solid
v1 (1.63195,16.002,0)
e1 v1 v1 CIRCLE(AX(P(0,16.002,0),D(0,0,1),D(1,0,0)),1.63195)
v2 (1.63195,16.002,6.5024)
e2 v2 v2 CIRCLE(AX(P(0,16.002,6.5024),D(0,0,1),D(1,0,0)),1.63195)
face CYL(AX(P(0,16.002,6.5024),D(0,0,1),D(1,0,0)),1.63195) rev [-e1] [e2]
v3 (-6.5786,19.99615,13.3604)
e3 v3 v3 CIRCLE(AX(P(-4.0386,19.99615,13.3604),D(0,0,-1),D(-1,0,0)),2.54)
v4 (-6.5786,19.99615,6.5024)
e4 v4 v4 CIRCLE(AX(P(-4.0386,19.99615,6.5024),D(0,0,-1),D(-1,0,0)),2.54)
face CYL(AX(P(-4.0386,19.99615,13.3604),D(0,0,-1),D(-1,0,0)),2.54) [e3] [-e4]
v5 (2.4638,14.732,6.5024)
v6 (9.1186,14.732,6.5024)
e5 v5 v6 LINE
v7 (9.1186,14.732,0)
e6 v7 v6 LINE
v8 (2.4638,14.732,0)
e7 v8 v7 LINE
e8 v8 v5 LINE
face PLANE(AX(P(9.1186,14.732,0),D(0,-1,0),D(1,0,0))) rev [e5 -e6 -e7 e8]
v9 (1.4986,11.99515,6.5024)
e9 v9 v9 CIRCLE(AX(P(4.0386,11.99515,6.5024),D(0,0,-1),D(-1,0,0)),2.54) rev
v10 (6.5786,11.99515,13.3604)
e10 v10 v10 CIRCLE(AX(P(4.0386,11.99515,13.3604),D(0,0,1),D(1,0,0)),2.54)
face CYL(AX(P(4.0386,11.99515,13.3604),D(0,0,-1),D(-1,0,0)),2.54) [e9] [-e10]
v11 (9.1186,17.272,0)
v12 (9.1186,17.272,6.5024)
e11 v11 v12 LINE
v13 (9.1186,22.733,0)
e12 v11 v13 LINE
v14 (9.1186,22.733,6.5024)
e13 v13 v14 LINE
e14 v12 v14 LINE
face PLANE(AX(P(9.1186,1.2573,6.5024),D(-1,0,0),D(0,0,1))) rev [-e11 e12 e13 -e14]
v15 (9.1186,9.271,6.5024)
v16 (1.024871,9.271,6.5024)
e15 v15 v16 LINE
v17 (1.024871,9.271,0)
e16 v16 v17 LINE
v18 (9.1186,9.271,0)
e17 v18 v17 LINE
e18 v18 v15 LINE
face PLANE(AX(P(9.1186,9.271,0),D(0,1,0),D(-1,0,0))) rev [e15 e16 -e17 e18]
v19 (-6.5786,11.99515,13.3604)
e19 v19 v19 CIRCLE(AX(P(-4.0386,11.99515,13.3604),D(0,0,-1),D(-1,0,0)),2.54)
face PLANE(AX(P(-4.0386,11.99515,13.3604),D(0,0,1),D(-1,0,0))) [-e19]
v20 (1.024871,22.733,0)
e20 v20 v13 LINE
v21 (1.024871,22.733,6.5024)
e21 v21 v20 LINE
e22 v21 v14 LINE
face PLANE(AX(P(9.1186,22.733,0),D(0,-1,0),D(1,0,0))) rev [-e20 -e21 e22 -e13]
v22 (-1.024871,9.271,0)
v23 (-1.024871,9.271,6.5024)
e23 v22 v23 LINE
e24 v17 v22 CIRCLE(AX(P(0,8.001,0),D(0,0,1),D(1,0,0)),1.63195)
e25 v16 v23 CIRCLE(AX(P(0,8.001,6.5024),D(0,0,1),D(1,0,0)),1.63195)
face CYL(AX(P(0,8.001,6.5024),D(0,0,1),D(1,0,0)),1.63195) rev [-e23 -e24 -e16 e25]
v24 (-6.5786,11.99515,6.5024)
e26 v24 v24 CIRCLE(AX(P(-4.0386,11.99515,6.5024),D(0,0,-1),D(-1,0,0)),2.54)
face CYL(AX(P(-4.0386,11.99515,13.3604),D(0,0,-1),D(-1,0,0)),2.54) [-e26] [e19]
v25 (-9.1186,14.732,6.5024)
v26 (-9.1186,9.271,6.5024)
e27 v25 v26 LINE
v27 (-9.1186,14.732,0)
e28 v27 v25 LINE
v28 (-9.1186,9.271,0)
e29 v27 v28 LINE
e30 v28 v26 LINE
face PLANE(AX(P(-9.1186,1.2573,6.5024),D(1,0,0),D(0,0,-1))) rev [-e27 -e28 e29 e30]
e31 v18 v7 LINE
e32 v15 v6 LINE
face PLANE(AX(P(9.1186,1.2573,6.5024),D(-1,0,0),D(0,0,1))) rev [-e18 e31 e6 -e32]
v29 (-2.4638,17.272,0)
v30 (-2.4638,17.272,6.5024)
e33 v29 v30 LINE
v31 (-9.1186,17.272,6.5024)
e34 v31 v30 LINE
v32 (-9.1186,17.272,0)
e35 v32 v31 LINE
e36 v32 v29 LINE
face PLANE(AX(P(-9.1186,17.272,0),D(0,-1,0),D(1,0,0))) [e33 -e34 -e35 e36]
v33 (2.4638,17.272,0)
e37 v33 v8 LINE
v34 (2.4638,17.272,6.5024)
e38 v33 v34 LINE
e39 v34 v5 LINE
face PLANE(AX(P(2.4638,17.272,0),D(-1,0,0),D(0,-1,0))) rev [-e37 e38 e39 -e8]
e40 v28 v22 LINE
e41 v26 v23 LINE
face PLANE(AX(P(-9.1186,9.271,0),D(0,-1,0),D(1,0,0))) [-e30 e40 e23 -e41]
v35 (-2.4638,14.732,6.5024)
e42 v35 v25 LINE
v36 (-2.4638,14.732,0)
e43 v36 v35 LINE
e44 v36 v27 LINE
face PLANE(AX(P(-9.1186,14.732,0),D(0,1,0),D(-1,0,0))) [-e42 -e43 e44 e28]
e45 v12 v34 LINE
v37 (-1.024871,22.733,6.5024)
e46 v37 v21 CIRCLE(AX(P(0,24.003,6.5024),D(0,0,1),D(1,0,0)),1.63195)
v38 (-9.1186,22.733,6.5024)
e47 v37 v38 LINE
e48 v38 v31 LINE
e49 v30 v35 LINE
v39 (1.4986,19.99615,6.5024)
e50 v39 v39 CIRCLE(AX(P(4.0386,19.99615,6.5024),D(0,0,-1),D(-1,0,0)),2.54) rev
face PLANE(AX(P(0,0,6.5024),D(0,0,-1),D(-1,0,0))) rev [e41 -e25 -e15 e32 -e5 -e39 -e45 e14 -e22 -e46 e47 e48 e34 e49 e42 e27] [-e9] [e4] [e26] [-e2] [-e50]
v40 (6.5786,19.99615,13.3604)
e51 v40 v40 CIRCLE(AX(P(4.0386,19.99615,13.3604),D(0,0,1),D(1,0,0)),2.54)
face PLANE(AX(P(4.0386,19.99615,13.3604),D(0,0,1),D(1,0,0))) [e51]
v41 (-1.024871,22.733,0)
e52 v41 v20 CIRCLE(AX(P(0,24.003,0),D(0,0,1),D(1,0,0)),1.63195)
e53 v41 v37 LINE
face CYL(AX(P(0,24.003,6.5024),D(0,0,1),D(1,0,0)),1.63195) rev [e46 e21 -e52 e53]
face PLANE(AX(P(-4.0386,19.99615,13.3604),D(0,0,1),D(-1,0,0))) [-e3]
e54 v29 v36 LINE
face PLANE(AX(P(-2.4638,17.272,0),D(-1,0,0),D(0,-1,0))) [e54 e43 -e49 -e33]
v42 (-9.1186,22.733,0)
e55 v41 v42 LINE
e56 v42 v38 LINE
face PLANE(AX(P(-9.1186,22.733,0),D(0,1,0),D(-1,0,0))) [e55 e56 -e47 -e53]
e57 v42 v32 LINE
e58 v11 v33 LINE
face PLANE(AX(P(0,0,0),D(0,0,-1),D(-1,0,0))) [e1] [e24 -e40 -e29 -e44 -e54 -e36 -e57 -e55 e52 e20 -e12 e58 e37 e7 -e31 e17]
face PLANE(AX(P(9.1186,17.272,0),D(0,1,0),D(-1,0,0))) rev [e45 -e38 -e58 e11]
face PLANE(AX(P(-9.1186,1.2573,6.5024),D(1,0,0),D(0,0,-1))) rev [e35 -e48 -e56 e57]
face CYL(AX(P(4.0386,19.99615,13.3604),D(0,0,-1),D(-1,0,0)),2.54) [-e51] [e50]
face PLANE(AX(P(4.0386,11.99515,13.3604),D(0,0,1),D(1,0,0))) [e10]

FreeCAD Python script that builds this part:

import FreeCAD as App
import Part
import Sketcher
Q = App.Units.Quantity


def add_polygon(sketch, points):
    """Adds a closed chain of lines whose ends are joined by coincident constraints."""
    first, n = sketch.GeometryCount, len(points)
    for a, b in zip(points, points[1:] + points[:1]):
        sketch.addGeometry(Part.LineSegment(App.Vector(*a, 0), App.Vector(*b, 0)), False)
    for i in range(n):
        sketch.addConstraint(Sketcher.Constraint("Coincident", first + i, 2, first + (i + 1) % n, 1))

doc = App.newDocument("Part")
params = doc.addObject("Spreadsheet::Sheet", "Params")
for row, (alias, value) in enumerate([
    ("sketch1_width", "0.718 in"),
    ("sketch1_height", "0.531 in"),
    ("pad1_length", "0.256 in"),
    ("sketch2_height", "0.1 in"),
    ("sketch2_width", "0.262 in"),
    ("sketch3_diameter", "0.2 in"),
    ("pad2_length", "0.27 in"),
    ("sketch4_width", "0.718 in"),
    ("hole_diameter", "0.1285 in"),
    ("linearpattern_pitch", "0.315 in"),
    ("sketch6_height", "0.1 in"),
    ("sketch6_width", "0.262 in"),
    ("sketch7_height", "0.1 in"),
    ("sketch7_width", "0.262 in"),
    ("sketch8_height", "0.1 in"),
    ("sketch8_width", "0.262 in"),
    ("sketch9_diameter", "0.2 in"),
    ("pad3_length", "0.27 in"),
    ("sketch10_diameter", "0.2 in"),
    ("pad4_length", "0.27 in"),
    ("sketch11_diameter", "0.2 in"),
    ("pad5_length", "0.27 in"),
    ("sketch12_width", "0.718 in"),
    ("sketch13_width", "0.718 in"),
], start=1):
    params.set(f"A{row}", alias)
    params.set(f"B{row}", "=" + value)
    params.setAlias(f"B{row}", alias)

body = doc.addObject("PartDesign::Body", "Body")

# Sketch on XY plane
sketch1 = body.newObject("Sketcher::SketchObject", "Sketch")
sketch1.AttachmentSupport = (doc.getObject("XY_Plane"), [""])
sketch1.MapMode = "FlatFace"
add_polygon(sketch1, [(-9.1186, 6.7437), (-9.1186, -6.7437), (9.1186, -6.7437), (9.1186, 6.7437)])  # lines 0-3
sketch1.addConstraint([
    Sketcher.Constraint("Vertical", 0),
    Sketcher.Constraint("Horizontal", 1),
    Sketcher.Constraint("Vertical", 2),
    Sketcher.Constraint("Horizontal", 3),
    Sketcher.Constraint("Symmetric", 0, 2, 2, 2, -1, 1),
    Sketcher.Constraint("DistanceX", 1, 1, 1, 2, Q("0.718 in")),
    Sketcher.Constraint("DistanceY", 0, 2, 0, 1, Q("0.531 in")),
])
sketch1.setExpression("Constraints[9]", "Params.sketch1_width")
sketch1.setExpression("Constraints[10]", "Params.sketch1_height")
pad1 = body.newObject("PartDesign::Pad", "Pad")
pad1.Profile = sketch1
pad1.setExpression("Length", "Params.pad1_length")

# Sketch on XY plane
sketch2 = body.newObject("Sketcher::SketchObject", "Sketch001")
sketch2.AttachmentSupport = (doc.getObject("XY_Plane"), [""])
sketch2.MapMode = "FlatFace"
sketch2.AttachmentOffset = App.Placement(App.Vector(0, 0, 0.256 * 25.4), App.Rotation())
add_polygon(sketch2, [(2.4638, 1.27), (2.4638, -1.27), (9.1186, -1.27), (9.1186, 1.27)])  # lines 0-3
sketch2.addConstraint([
    Sketcher.Constraint("Vertical", 0),
    Sketcher.Constraint("Horizontal", 1),
    Sketcher.Constraint("Vertical", 2),
    Sketcher.Constraint("Horizontal", 3),
    Sketcher.Constraint("DistanceY", 0, 2, 0, 1, Q("0.1 in")),
    Sketcher.Constraint("DistanceX", 1, 1, 1, 2, Q("0.262 in")),
    Sketcher.Constraint("DistanceY", 0, 2, -1, 1, Q("0.05 in")),
    Sketcher.Constraint("DistanceX", -1, 1, 0, 2, Q("0.097 in")),
])
sketch2.setExpression("Constraints[8]", "Params.sketch2_height")
sketch2.setExpression("Constraints[9]", "Params.sketch2_width")
pocket1 = body.newObject("PartDesign::Pocket", "Pocket")
pocket1.Profile = sketch2
pocket1.Type = "ThroughAll"

# Sketch on XY plane
sketch3 = body.newObject("Sketcher::SketchObject", "Sketch002")
sketch3.AttachmentSupport = (doc.getObject("XY_Plane"), [""])
sketch3.MapMode = "FlatFace"
sketch3.AttachmentOffset = App.Placement(App.Vector(0, 0, 0.256 * 25.4), App.Rotation())
sketch3.addGeometry(Part.Circle(App.Vector(4.0386, -4.00685, 0), App.Vector(0, 0, 1), 2.54), False)
sketch3.addConstraint([
    Sketcher.Constraint("Diameter", 0, Q("0.2 in")),
    Sketcher.Constraint("DistanceX", -1, 1, 0, 3, Q("0.159 in")),
    Sketcher.Constraint("DistanceY", 0, 3, -1, 1, Q("4.00685 mm")),
])
sketch3.setExpression("Constraints[0]", "Params.sketch3_diameter")
pad2 = body.newObject("PartDesign::Pad", "Pad001")
pad2.Profile = sketch3
pad2.setExpression("Length", "Params.pad2_length")

# Sketch on XY plane
sketch4 = body.newObject("Sketcher::SketchObject", "Sketch003")
sketch4.AttachmentSupport = (doc.getObject("XY_Plane"), [""])
sketch4.MapMode = "FlatFace"
sketch4.AttachmentOffset = App.Placement(App.Vector(0, 0, 0.256 * 25.4), App.Rotation())
add_polygon(sketch4, [(-9.1186, 6.7437), (-9.1186, 1.27), (9.1186, 1.27), (9.1186, 6.7437)])  # lines 0-3
sketch4.addConstraint([
    Sketcher.Constraint("Vertical", 0),
    Sketcher.Constraint("Horizontal", 1),
    Sketcher.Constraint("Vertical", 2),
    Sketcher.Constraint("Horizontal", 3),
    Sketcher.Constraint("DistanceX", 1, 1, 1, 2, Q("0.718 in")),
    Sketcher.Constraint("DistanceY", -1, 1, 0, 2, Q("0.05 in")),
    Sketcher.Constraint("DistanceY", 0, 2, 0, 1, Q("0.2155 in")),
    Sketcher.Constraint("DistanceX", 0, 2, -1, 1, Q("0.359 in")),
])
sketch4.setExpression("Constraints[8]", "Params.sketch4_width")
pocket2 = body.newObject("PartDesign::Pocket", "Pocket001")
pocket2.Profile = sketch4
pocket2.Type = "ThroughAll"

# Sketch on XY plane
sketch5 = body.newObject("Sketcher::SketchObject", "Sketch004")
sketch5.AttachmentSupport = (doc.getObject("XY_Plane"), [""])
sketch5.MapMode = "FlatFace"
sketch5.AttachmentOffset = App.Placement(App.Vector(0, 0, 0.256 * 25.4), App.Rotation())
sketch5.addGeometry(Part.Circle(App.Vector(0, 0, 0), App.Vector(0, 0, 1), 1.63195), False)
sketch5.addConstraint([
    Sketcher.Constraint("Coincident", 0, 3, -1, 1),
    Sketcher.Constraint("Diameter", 0, Q("0.1285 in")),
])
doc.recompute()
hole = body.newObject("PartDesign::Hole", "Hole")
hole.Profile = sketch5
hole.ThreadType = "None"
hole.setExpression("Diameter", "Params.hole_diameter")
hole.DepthType = "ThroughAll"
doc.recompute()

mirrored = body.newObject("PartDesign::Mirrored", "Mirrored")
mirrored.Originals = [pocket1, pad2]
mirrored.MirrorPlane = (doc.getObject("YZ_Plane"), [""])
body.Tip = mirrored
doc.recompute()

linearpattern = body.newObject("PartDesign::LinearPattern", "LinearPattern")
linearpattern.Originals = [pad1, pocket1, pad2, hole]
linearpattern.Direction = (doc.getObject("Y_Axis"), [""])
linearpattern.Mode = "offset"
linearpattern.setExpression("Offset", "Params.linearpattern_pitch")
linearpattern.Occurrences = 4
body.Tip = linearpattern

# Sketch on XY plane
sketch6 = body.newObject("Sketcher::SketchObject", "Sketch005")
sketch6.AttachmentSupport = (doc.getObject("XY_Plane"), [""])
sketch6.MapMode = "FlatFace"
sketch6.AttachmentOffset = App.Placement(App.Vector(0, 0, 0.256 * 25.4), App.Rotation())
add_polygon(sketch6, [(-2.4638, 6.731), (-2.4638, 9.271), (-9.1186, 9.271), (-9.1186, 6.731)])  # lines 0-3
sketch6.addConstraint([
    Sketcher.Constraint("Vertical", 0),
    Sketcher.Constraint("Horizontal", 1),
    Sketcher.Constraint("Vertical", 2),
    Sketcher.Constraint("Horizontal", 3),
    Sketcher.Constraint("DistanceY", 0, 1, 0, 2, Q("0.1 in")),
    Sketcher.Constraint("DistanceX", 1, 2, 1, 1, Q("0.262 in")),
    Sketcher.Constraint("DistanceX", 0, 2, -1, 1, Q("0.097 in")),
    Sketcher.Constraint("DistanceY", -1, 1, 0, 2, Q("0.365 in")),
])
sketch6.setExpression("Constraints[8]", "Params.sketch6_height")
sketch6.setExpression("Constraints[9]", "Params.sketch6_width")
pocket3 = body.newObject("PartDesign::Pocket", "Pocket002")
pocket3.Profile = sketch6
pocket3.Type = "ThroughAll"

# Sketch on XY plane
sketch7 = body.newObject("Sketcher::SketchObject", "Sketch006")
sketch7.AttachmentSupport = (doc.getObject("XY_Plane"), [""])
sketch7.MapMode = "FlatFace"
sketch7.AttachmentOffset = App.Placement(App.Vector(0, 0, 0.256 * 25.4), App.Rotation())
add_polygon(sketch7, [(-2.4638, 14.732), (-2.4638, 17.272), (-9.1186, 17.272), (-9.1186, 14.732)])  # lines 0-3
sketch7.addConstraint([
    Sketcher.Constraint("Vertical", 0),
    Sketcher.Constraint("Horizontal", 1),
    Sketcher.Constraint("Vertical", 2),
    Sketcher.Constraint("Horizontal", 3),
    Sketcher.Constraint("DistanceY", 0, 1, 0, 2, Q("0.1 in")),
    Sketcher.Constraint("DistanceX", 1, 2, 1, 1, Q("0.262 in")),
    Sketcher.Constraint("DistanceY", -1, 1, 0, 2, Q("0.68 in")),
    Sketcher.Constraint("DistanceX", 0, 2, -1, 1, Q("0.097 in")),
])
sketch7.setExpression("Constraints[8]", "Params.sketch7_height")
sketch7.setExpression("Constraints[9]", "Params.sketch7_width")
pocket4 = body.newObject("PartDesign::Pocket", "Pocket003")
pocket4.Profile = sketch7
pocket4.Type = "ThroughAll"

# Sketch on XY plane
sketch8 = body.newObject("Sketcher::SketchObject", "Sketch007")
sketch8.AttachmentSupport = (doc.getObject("XY_Plane"), [""])
sketch8.MapMode = "FlatFace"
sketch8.AttachmentOffset = App.Placement(App.Vector(0, 0, 0.256 * 25.4), App.Rotation())
add_polygon(sketch8, [(-2.4638, 22.733), (-2.4638, 25.273), (-9.1186, 25.273), (-9.1186, 22.733)])  # lines 0-3
sketch8.addConstraint([
    Sketcher.Constraint("Vertical", 0),
    Sketcher.Constraint("Horizontal", 1),
    Sketcher.Constraint("Vertical", 2),
    Sketcher.Constraint("Horizontal", 3),
    Sketcher.Constraint("DistanceY", 0, 1, 0, 2, Q("0.1 in")),
    Sketcher.Constraint("DistanceX", 1, 2, 1, 1, Q("0.262 in")),
    Sketcher.Constraint("DistanceX", 0, 2, -1, 1, Q("0.097 in")),
    Sketcher.Constraint("DistanceY", -1, 1, 0, 2, Q("0.995 in")),
])
sketch8.setExpression("Constraints[8]", "Params.sketch8_height")
sketch8.setExpression("Constraints[9]", "Params.sketch8_width")
pocket5 = body.newObject("PartDesign::Pocket", "Pocket004")
pocket5.Profile = sketch8
pocket5.Type = "ThroughAll"

# Sketch on XY plane
sketch9 = body.newObject("Sketcher::SketchObject", "Sketch008")
sketch9.AttachmentSupport = (doc.getObject("XY_Plane"), [""])
sketch9.MapMode = "FlatFace"
sketch9.AttachmentOffset = App.Placement(App.Vector(0, 0, 0.256 * 25.4), App.Rotation())
sketch9.addGeometry(Part.Circle(App.Vector(-4.0386, 3.99415, 0), App.Vector(0, 0, 1), 2.54), False)
sketch9.addConstraint([
    Sketcher.Constraint("Diameter", 0, Q("0.2 in")),
    Sketcher.Constraint("DistanceX", 0, 3, -1, 1, Q("0.159 in")),
    Sketcher.Constraint("DistanceY", -1, 1, 0, 3, Q("3.99415 mm")),
])
sketch9.setExpression("Constraints[0]", "Params.sketch9_diameter")
pad3 = body.newObject("PartDesign::Pad", "Pad002")
pad3.Profile = sketch9
pad3.setExpression("Length", "Params.pad3_length")

# Sketch on XY plane
sketch10 = body.newObject("Sketcher::SketchObject", "Sketch009")
sketch10.AttachmentSupport = (doc.getObject("XY_Plane"), [""])
sketch10.MapMode = "FlatFace"
sketch10.AttachmentOffset = App.Placement(App.Vector(0, 0, 0.256 * 25.4), App.Rotation())
sketch10.addGeometry(Part.Circle(App.Vector(-4.0386, 11.99515, 0), App.Vector(0, 0, 1), 2.54), False)
sketch10.addConstraint([
    Sketcher.Constraint("Diameter", 0, Q("0.2 in")),
    Sketcher.Constraint("DistanceX", 0, 3, -1, 1, Q("0.159 in")),
    Sketcher.Constraint("DistanceY", -1, 1, 0, 3, Q("11.99515 mm")),
])
sketch10.setExpression("Constraints[0]", "Params.sketch10_diameter")
pad4 = body.newObject("PartDesign::Pad", "Pad003")
pad4.Profile = sketch10
pad4.setExpression("Length", "Params.pad4_length")

# Sketch on XY plane
sketch11 = body.newObject("Sketcher::SketchObject", "Sketch010")
sketch11.AttachmentSupport = (doc.getObject("XY_Plane"), [""])
sketch11.MapMode = "FlatFace"
sketch11.AttachmentOffset = App.Placement(App.Vector(0, 0, 0.256 * 25.4), App.Rotation())
sketch11.addGeometry(Part.Circle(App.Vector(-4.0386, 19.99615, 0), App.Vector(0, 0, 1), 2.54), False)
sketch11.addConstraint([
    Sketcher.Constraint("Diameter", 0, Q("0.2 in")),
    Sketcher.Constraint("DistanceX", 0, 3, -1, 1, Q("0.159 in")),
    Sketcher.Constraint("DistanceY", -1, 1, 0, 3, Q("19.99615 mm")),
])
sketch11.setExpression("Constraints[0]", "Params.sketch11_diameter")
pad5 = body.newObject("PartDesign::Pad", "Pad004")
pad5.Profile = sketch11
pad5.setExpression("Length", "Params.pad5_length")

# Sketch on XY plane
sketch12 = body.newObject("Sketcher::SketchObject", "Sketch011")
sketch12.AttachmentSupport = (doc.getObject("XY_Plane"), [""])
sketch12.MapMode = "FlatFace"
sketch12.AttachmentOffset = App.Placement(App.Vector(0, 0, 0.256 * 25.4), App.Rotation())
add_polygon(sketch12, [(-9.1186, 30.7467), (-9.1186, 22.733), (9.1186, 22.733), (9.1186, 30.7467)])  # lines 0-3
sketch12.addConstraint([
    Sketcher.Constraint("Vertical", 0),
    Sketcher.Constraint("Horizontal", 1),
    Sketcher.Constraint("Vertical", 2),
    Sketcher.Constraint("Horizontal", 3),
    Sketcher.Constraint("DistanceX", 1, 1, 1, 2, Q("0.718 in")),
    Sketcher.Constraint("DistanceY", 0, 2, 0, 1, Q("0.3155 in")),
    Sketcher.Constraint("DistanceX", 0, 2, -1, 1, Q("0.359 in")),
    Sketcher.Constraint("DistanceY", -1, 1, 0, 2, Q("0.895 in")),
])
sketch12.setExpression("Constraints[8]", "Params.sketch12_width")
pocket6 = body.newObject("PartDesign::Pocket", "Pocket005")
pocket6.Profile = sketch12
pocket6.Type = "ThroughAll"

# Sketch on XY plane
sketch13 = body.newObject("Sketcher::SketchObject", "Sketch012")
sketch13.AttachmentSupport = (doc.getObject("XY_Plane"), [""])
sketch13.MapMode = "FlatFace"
add_polygon(sketch13, [(-9.1186, 9.271), (-9.1186, -6.7437), (9.1186, -6.7437), (9.1186, 9.271)])  # lines 0-3
sketch13.addConstraint([
    Sketcher.Constraint("Vertical", 0),
    Sketcher.Constraint("Horizontal", 1),
    Sketcher.Constraint("Vertical", 2),
    Sketcher.Constraint("Horizontal", 3),
    Sketcher.Constraint("DistanceX", 1, 1, 1, 2, Q("0.718 in")),
    Sketcher.Constraint("DistanceY", 0, 2, 0, 1, Q("0.6305 in")),
    Sketcher.Constraint("DistanceX", 0, 2, -1, 1, Q("0.359 in")),
    Sketcher.Constraint("DistanceY", -1, 1, 2, 2, Q("0.365 in")),
])
sketch13.setExpression("Constraints[8]", "Params.sketch13_width")
pocket7 = body.newObject("PartDesign::Pocket", "Pocket006")
pocket7.Profile = sketch13
pocket7.Type = "ThroughAll"
pocket7.Reversed = True

doc.recompute()
